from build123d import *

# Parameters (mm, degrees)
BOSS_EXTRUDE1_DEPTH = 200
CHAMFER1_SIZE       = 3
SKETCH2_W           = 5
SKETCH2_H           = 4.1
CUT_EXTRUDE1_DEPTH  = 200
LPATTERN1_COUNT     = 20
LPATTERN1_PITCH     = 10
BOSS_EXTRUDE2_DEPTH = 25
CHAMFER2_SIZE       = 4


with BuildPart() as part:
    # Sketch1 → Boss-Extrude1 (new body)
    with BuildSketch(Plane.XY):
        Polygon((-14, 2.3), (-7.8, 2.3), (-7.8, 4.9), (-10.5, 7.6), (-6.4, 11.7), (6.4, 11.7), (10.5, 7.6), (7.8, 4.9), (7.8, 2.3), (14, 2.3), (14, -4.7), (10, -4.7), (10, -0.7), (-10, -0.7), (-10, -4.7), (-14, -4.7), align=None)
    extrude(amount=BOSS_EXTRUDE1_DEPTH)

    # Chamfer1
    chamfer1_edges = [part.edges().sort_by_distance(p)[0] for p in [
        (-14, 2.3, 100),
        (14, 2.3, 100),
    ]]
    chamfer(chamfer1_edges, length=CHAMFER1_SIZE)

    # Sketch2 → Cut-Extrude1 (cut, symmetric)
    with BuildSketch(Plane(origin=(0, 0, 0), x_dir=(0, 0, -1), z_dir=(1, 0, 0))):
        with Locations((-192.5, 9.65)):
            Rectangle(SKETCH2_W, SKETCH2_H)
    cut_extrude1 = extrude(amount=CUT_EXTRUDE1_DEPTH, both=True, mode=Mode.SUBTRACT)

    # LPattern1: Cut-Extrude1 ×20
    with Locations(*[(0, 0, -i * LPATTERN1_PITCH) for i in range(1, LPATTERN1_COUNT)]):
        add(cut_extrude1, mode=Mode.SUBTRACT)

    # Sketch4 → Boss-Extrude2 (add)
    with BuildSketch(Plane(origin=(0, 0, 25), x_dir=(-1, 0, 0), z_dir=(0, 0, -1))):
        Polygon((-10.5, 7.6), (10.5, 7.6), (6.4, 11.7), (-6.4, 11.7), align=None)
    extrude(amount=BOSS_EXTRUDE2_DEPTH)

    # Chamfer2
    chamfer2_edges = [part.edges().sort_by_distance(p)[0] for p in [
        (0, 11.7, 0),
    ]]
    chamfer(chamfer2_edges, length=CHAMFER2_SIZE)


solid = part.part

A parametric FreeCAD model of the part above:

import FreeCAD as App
import Part
import Sketcher


def edges_at(feature, points):
    """Names of the edges that pass closest to the given points."""
    edges = feature.Shape.Edges
    near = lambda p: min(range(len(edges)), key=lambda i: edges[i].distToShape(Part.Vertex(*p))[0])
    return sorted({f"Edge{near(p) + 1}" for p in points})


def add_polygon(sketch, points):
    """Adds a closed chain of lines whose ends are joined by coincident constraints."""
    first, n = sketch.GeometryCount, len(points)
    for a, b in zip(points, points[1:] + points[:1]):
        sketch.addGeometry(Part.LineSegment(App.Vector(*a, 0), App.Vector(*b, 0)), False)
    for i in range(n):
        sketch.addConstraint(Sketcher.Constraint("Coincident", first + i, 2, first + (i + 1) % n, 1))

doc = App.newDocument("Part")
body = doc.addObject("PartDesign::Body", "Body")

sketch1 = doc.addObject("Sketcher::SketchObject", "Sketch")
body.addObject(sketch1)
sketch1.AttachmentSupport = (doc.XY_Plane, [""])
sketch1.MapMode = "FlatFace"
add_polygon(sketch1, [(-7.8, 2.3), (-14, 2.3), (-14, -4.7), (-10, -4.7), (-10, -0.7), (10, -0.7), (10, -4.7), (14, -4.7), (14, 2.3), (7.8, 2.3), (7.8, 4.9), (10.5, 7.6), (6.4, 11.7), (-6.4, 11.7), (-10.5, 7.6), (-7.8, 4.9)])
sketch1.addConstraint(Sketcher.Constraint("Horizontal", 0))
sketch1.addConstraint(Sketcher.Constraint("Vertical", 1))
sketch1.addConstraint(Sketcher.Constraint("Horizontal", 2))
sketch1.addConstraint(Sketcher.Constraint("Vertical", 3))
sketch1.addConstraint(Sketcher.Constraint("Horizontal", 4))
sketch1.addConstraint(Sketcher.Constraint("Vertical", 5))
sketch1.addConstraint(Sketcher.Constraint("Horizontal", 6))
sketch1.addConstraint(Sketcher.Constraint("Vertical", 7))
sketch1.addConstraint(Sketcher.Constraint("Horizontal", 8))
sketch1.addConstraint(Sketcher.Constraint("Vertical", 9))
sketch1.addConstraint(Sketcher.Constraint("Horizontal", 12))
sketch1.addConstraint(Sketcher.Constraint("Vertical", 15))
sketch1.addConstraint(Sketcher.Constraint("Symmetric", 2, 2, 5, 2, -2))
sketch1.addConstraint(Sketcher.Constraint("Symmetric", 0, 2, 7, 2, -2))
sketch1.addConstraint(Sketcher.Constraint("Symmetric", 10, 2, 13, 2, -2))
sketch1.addConstraint(Sketcher.Constraint("Symmetric", 9, 2, 14, 2, -2))
sketch1.addConstraint(Sketcher.Constraint("Perpendicular", 10, 11))
sketch1.addConstraint(Sketcher.Constraint("Perpendicular", 11, 13))
sketch1.addConstraint(Sketcher.Constraint("Perpendicular", 13, 14))
sketch1.addConstraint(Sketcher.Constraint("Equal", 6, 3))
sketch1.addConstraint(Sketcher.Constraint("DistanceX", 2, 1, 2, 2, 4.0))
sketch1.addConstraint(Sketcher.Constraint("DistanceX", 4, 1, 4, 2, 20.0))
sketch1.addConstraint(Sketcher.Constraint("DistanceY", 1, 2, 1, 1, 7.0))
sketch1.addConstraint(Sketcher.Constraint("DistanceX", 0, 2, 0, 1, 6.2))
sketch1.addConstraint(Sketcher.Constraint("DistanceX", 12, 2, 12, 1, 12.8))
sketch1.addConstraint(Sketcher.Constraint("DistanceY", 9, 1, 9, 2, 2.6))
sketch1.addConstraint(Sketcher.Constraint("DistanceY", -1, 1, 0, 2, 2.3))
sketch1.addConstraint(Sketcher.Constraint("DistanceX", -1, 1, 10, 2, 10.5))
pad1 = doc.addObject("PartDesign::Pad", "Pad")
body.addObject(pad1)
pad1.Profile = sketch1
pad1.Length = 200
doc.recompute()

chamfer = doc.addObject("PartDesign::Chamfer", "Chamfer")
body.addObject(chamfer)
chamfer.Base = (pad1, edges_at(pad1, [(-14, 2.3, 100), (14, 2.3, 100)]))
chamfer.Size = 3

sketch2 = doc.addObject("Sketcher::SketchObject", "Sketch001")
body.addObject(sketch2)
sketch2.AttachmentSupport = (doc.YZ_Plane, [""])
sketch2.MapMode = "FlatFace"
add_polygon(sketch2, [(11.7, 195), (7.6, 195), (7.6, 190), (11.7, 190)])
sketch2.addConstraint(Sketcher.Constraint("Horizontal", 0))
sketch2.addConstraint(Sketcher.Constraint("Vertical", 1))
sketch2.addConstraint(Sketcher.Constraint("Horizontal", 2))
sketch2.addConstraint(Sketcher.Constraint("Vertical", 3))
sketch2.addConstraint(Sketcher.Constraint("DistanceY", 1, 2, 1, 1, 5.0))
sketch2.addConstraint(Sketcher.Constraint("DistanceX", 0, 2, 0, 1, 4.1))
sketch2.addConstraint(Sketcher.Constraint("DistanceY", -1, 1, 0, 2, 195.0))
sketch2.addConstraint(Sketcher.Constraint("DistanceX", -1, 1, 0, 2, 7.6))
pocket1 = doc.addObject("PartDesign::Pocket", "Pocket")
body.addObject(pocket1)
pocket1.Profile = sketch2
pocket1.Length = 400
pocket1.Midplane = True
doc.recompute()

linearpattern = doc.addObject("PartDesign::LinearPattern", "LinearPattern")
body.addObject(linearpattern)
linearpattern.Originals = [pocket1]
linearpattern.Direction = (doc.Z_Axis, [""])
linearpattern.Mode = "offset"
linearpattern.Offset = 10
linearpattern.Occurrences = 20
linearpattern.Reversed = True
body.Tip = linearpattern

sketch3 = doc.addObject("Sketcher::SketchObject", "Sketch002")
body.addObject(sketch3)
sketch3.AttachmentSupport = (doc.XY_Plane, [""])
sketch3.MapMode = "FlatFace"
sketch3.AttachmentOffset = App.Placement(App.Vector(0, 0, 25), App.Rotation())
add_polygon(sketch3, [(10, 8), (-10, 8), (-6, 12), (6, 12)])
sketch3.addConstraint(Sketcher.Constraint("Horizontal", 0))
sketch3.addConstraint(Sketcher.Constraint("Horizontal", 2))
sketch3.addConstraint(Sketcher.Constraint("Perpendicular", 1, 3))
sketch3.addConstraint(Sketcher.Constraint("Equal", 1, 3))
sketch3.addConstraint(Sketcher.Constraint("DistanceX", 0, 2, 0, 1, 21.0))
sketch3.addConstraint(Sketcher.Constraint("DistanceX", 2, 1, 2, 2, 12.8))
sketch3.addConstraint(Sketcher.Constraint("DistanceX", 0, 2, -1, 1, 10.5))
sketch3.addConstraint(Sketcher.Constraint("DistanceY", -1, 1, 0, 2, 7.6))
pad2 = doc.addObject("PartDesign::Pad", "Pad001")
body.addObject(pad2)
pad2.Profile = sketch3
pad2.Length = 25
pad2.Reversed = True
doc.recompute()

chamfer2 = doc.addObject("PartDesign::Chamfer", "Chamfer001")
body.addObject(chamfer2)
chamfer2.Base = (pad2, edges_at(pad2, [(0, 11.7, 0)]))
chamfer2.Size = 4

doc.recompute()
